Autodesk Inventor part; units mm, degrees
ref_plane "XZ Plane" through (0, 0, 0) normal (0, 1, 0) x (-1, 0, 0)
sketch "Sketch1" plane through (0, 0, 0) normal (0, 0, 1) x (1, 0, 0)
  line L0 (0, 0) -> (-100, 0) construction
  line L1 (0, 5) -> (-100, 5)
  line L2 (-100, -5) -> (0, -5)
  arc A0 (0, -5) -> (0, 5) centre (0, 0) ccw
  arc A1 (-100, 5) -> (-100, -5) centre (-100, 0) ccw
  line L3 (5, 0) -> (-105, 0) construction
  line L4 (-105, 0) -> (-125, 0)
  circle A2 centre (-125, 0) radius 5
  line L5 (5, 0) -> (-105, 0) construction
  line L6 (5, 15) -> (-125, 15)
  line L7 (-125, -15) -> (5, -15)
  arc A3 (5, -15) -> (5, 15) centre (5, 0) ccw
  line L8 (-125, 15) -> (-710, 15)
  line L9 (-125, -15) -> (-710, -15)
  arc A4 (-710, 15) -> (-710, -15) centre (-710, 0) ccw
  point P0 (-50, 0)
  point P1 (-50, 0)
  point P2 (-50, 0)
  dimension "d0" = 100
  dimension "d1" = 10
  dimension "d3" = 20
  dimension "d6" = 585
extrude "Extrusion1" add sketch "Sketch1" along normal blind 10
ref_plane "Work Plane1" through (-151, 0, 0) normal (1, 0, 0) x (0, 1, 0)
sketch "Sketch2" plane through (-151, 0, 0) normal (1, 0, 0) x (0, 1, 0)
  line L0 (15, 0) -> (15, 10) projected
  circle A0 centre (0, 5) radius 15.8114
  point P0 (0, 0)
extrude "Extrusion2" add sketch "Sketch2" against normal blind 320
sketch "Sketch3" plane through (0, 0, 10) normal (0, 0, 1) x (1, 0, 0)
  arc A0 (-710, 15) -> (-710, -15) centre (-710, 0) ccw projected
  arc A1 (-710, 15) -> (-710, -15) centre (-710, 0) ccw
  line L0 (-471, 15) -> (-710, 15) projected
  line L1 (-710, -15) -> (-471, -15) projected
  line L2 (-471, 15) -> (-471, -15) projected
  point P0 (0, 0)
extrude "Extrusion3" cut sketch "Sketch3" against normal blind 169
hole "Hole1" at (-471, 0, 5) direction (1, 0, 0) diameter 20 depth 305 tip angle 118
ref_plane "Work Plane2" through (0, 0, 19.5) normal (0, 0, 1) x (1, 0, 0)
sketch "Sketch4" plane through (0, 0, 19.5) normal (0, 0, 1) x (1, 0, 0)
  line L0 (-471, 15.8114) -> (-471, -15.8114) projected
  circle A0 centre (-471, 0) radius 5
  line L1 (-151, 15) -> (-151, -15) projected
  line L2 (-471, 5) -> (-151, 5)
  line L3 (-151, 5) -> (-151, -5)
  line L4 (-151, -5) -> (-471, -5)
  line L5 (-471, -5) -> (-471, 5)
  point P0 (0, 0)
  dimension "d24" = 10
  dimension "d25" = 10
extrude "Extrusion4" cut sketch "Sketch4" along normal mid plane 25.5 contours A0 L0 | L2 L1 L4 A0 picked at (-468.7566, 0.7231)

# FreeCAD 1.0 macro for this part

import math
import FreeCAD as App
import Part
import Sketcher
Q = App.Units.Quantity

doc = App.newDocument("Part")
body = doc.addObject("PartDesign::Body", "Body")

sketch1 = doc.addObject("Sketcher::SketchObject", "Sketch")
body.addObject(sketch1)
sketch1.AttachmentSupport = (doc.XY_Plane, [""])
sketch1.MapMode = "FlatFace"
sketch1.addGeometry([
    Part.ArcOfCircle(Part.Circle(App.Vector(5, 0, 0), App.Vector(0, 0, 1), 15), math.radians(-90), math.radians(90)),
    Part.LineSegment(App.Vector(5, 15, 0), App.Vector(-710, 15, 0)),
    Part.ArcOfCircle(Part.Circle(App.Vector(-710, 0, 0), App.Vector(0, 0, 1), 15), math.radians(90), math.radians(270)),
    Part.LineSegment(App.Vector(-710, -15, 0), App.Vector(5, -15, 0)),
    Part.Circle(App.Vector(-125, 0, 0), App.Vector(0, 0, 1), 5),
    Part.LineSegment(App.Vector(-100, 5, 0), App.Vector(0, 5, 0)),
    Part.ArcOfCircle(Part.Circle(App.Vector(0, 0, 0), App.Vector(0, 0, 1), 5), math.radians(-90), math.radians(90)),
    Part.LineSegment(App.Vector(0, -5, 0), App.Vector(-100, -5, 0)),
    Part.ArcOfCircle(Part.Circle(App.Vector(-100, 0, 0), App.Vector(0, 0, 1), 5), math.radians(180), math.radians(270)),
    Part.ArcOfCircle(Part.Circle(App.Vector(-100, 0, 0), App.Vector(0, 0, 1), 5), math.radians(90), math.radians(180)),
], False)
sketch1.addConstraint([
    Sketcher.Constraint("Tangent", 0, 2, 1, 1),
    Sketcher.Constraint("Tangent", 1, 2, 2, 1),
    Sketcher.Constraint("Tangent", 2, 2, 3, 1),
    Sketcher.Constraint("Tangent", 3, 2, 0, 1),
    Sketcher.Constraint("Tangent", 5, 2, 6, 2),
    Sketcher.Constraint("Tangent", 6, 1, 7, 1),
    Sketcher.Constraint("Tangent", 7, 2, 8, 2),
    Sketcher.Constraint("Tangent", 8, 1, 9, 2),
    Sketcher.Constraint("Tangent", 9, 1, 5, 1),
    Sketcher.Constraint("Horizontal", 1),
    Sketcher.Constraint("Horizontal", 3),
    Sketcher.Constraint("Horizontal", 5),
    Sketcher.Constraint("Horizontal", 7),
    Sketcher.Constraint("Coincident", 6, 3, -1, 1),
    Sketcher.Constraint("Equal", 4, 6),
    Sketcher.Constraint("Equal", 6, 8),
    Sketcher.Constraint("PointOnObject", 0, 3, -1),
    Sketcher.Constraint("PointOnObject", 4, 3, -1),
    Sketcher.Constraint("PointOnObject", 8, 1, -1),
    Sketcher.Constraint("Diameter", 4, Q("10 mm")),
    Sketcher.Constraint("DistanceX", 5, 1, 5, 2, Q("100 mm")),
    Sketcher.Constraint("Radius", 0, Q("15 mm")),
    Sketcher.Constraint("DistanceX", 2, 3, 4, 3, Q("585 mm")),
    Sketcher.Constraint("DistanceX", 4, 3, 8, 1, Q("20 mm")),
    Sketcher.Constraint("DistanceX", 1, 2, 1, 1, Q("715 mm")),
])
pad1 = doc.addObject("PartDesign::Pad", "Pad")
body.addObject(pad1)
pad1.Profile = sketch1
pad1.Length = 10

sketch2 = doc.addObject("Sketcher::SketchObject", "Sketch001")
body.addObject(sketch2)
sketch2.AttachmentSupport = (doc.YZ_Plane, [""])
sketch2.MapMode = "FlatFace"
sketch2.AttachmentOffset = App.Placement(App.Vector(0, 0, -151), App.Rotation())
sketch2.addGeometry(Part.Circle(App.Vector(0, 5, 0), App.Vector(0, 0, 1), 16), False)
sketch2.addConstraint([
    Sketcher.Constraint("PointOnObject", 0, 3, -2),
    Sketcher.Constraint("DistanceY", -1, 1, 0, 3, Q("5 mm")),
    Sketcher.Constraint("Diameter", 0, Q("31.6228 mm")),
])
pad2 = doc.addObject("PartDesign::Pad", "Pad001")
body.addObject(pad2)
pad2.Profile = sketch2
pad2.Length = 320
pad2.Reversed = True

sketch3 = doc.addObject("Sketcher::SketchObject", "Sketch002")
body.addObject(sketch3)
sketch3.AttachmentSupport = (doc.XY_Plane, [""])
sketch3.MapMode = "FlatFace"
sketch3.AttachmentOffset = App.Placement(App.Vector(0, 0, 10), App.Rotation())
sketch3.addGeometry([
    Part.LineSegment(App.Vector(-471, 15, 0), App.Vector(-710, 15, 0)),
    Part.ArcOfCircle(Part.Circle(App.Vector(-710, 0, 0), App.Vector(0, 0, 1), 15), math.radians(90), math.radians(270)),
    Part.LineSegment(App.Vector(-710, -15, 0), App.Vector(-471, -15, 0)),
    Part.LineSegment(App.Vector(-471, -15, 0), App.Vector(-471, 15, 0)),
], False)
sketch3.addConstraint([
    Sketcher.Constraint("Tangent", 0, 2, 1, 1),
    Sketcher.Constraint("Tangent", 1, 2, 2, 1),
    Sketcher.Constraint("Coincident", 2, 2, 3, 1),
    Sketcher.Constraint("Coincident", 3, 2, 0, 1),
    Sketcher.Constraint("Horizontal", 0),
    Sketcher.Constraint("Horizontal", 2),
    Sketcher.Constraint("Vertical", 3),
    Sketcher.Constraint("PointOnObject", 1, 3, -1),
    Sketcher.Constraint("Radius", 1, Q("15 mm")),
    Sketcher.Constraint("DistanceX", 0, 2, 0, 1, Q("239 mm")),
    Sketcher.Constraint("DistanceX", 1, 3, -1, 1, Q("710 mm")),
])
pocket1 = doc.addObject("PartDesign::Pocket", "Pocket")
body.addObject(pocket1)
pocket1.Profile = sketch3
pocket1.Length = 169

sketch4 = doc.addObject("Sketcher::SketchObject", "Sketch003")
body.addObject(sketch4)
sketch4.AttachmentSupport = (doc.YZ_Plane, [""])
sketch4.MapMode = "FlatFace"
sketch4.AttachmentOffset = App.Placement(App.Vector(0, 0, -471), App.Rotation())
sketch4.addGeometry(Part.Circle(App.Vector(0, 5, 0), App.Vector(0, 0, 1), 10), False)
sketch4.addConstraint([
    Sketcher.Constraint("PointOnObject", 0, 3, -2),
    Sketcher.Constraint("Diameter", 0, Q("20 mm")),
    Sketcher.Constraint("DistanceY", -1, 1, 0, 3, Q("5 mm")),
])
doc.recompute()
hole = doc.addObject("PartDesign::Hole", "Hole")
body.addObject(hole)
hole.Profile = sketch4
hole.ThreadType = "None"
hole.Diameter = 20
hole.DepthType = "Dimension"
hole.Depth = 305
hole.DrillPoint = "Angled"
hole.DrillPointAngle = 118
hole.Reversed = True

sketch5 = doc.addObject("Sketcher::SketchObject", "Sketch004")
body.addObject(sketch5)
sketch5.AttachmentSupport = (doc.XY_Plane, [""])
sketch5.MapMode = "FlatFace"
sketch5.AttachmentOffset = App.Placement(App.Vector(0, 0, 19.5), App.Rotation())
sketch5.addGeometry([
    Part.LineSegment(App.Vector(-471, 5, 0), App.Vector(-471, -5, 0)),
    Part.LineSegment(App.Vector(-471, -5, 0), App.Vector(-151, -5, 0)),
    Part.LineSegment(App.Vector(-151, -5, 0), App.Vector(-151, 5, 0)),
    Part.LineSegment(App.Vector(-151, 5, 0), App.Vector(-471, 5, 0)),
], False)
sketch5.addConstraint([
    Sketcher.Constraint("Coincident", 0, 2, 1, 1),
    Sketcher.Constraint("Coincident", 1, 2, 2, 1),
    Sketcher.Constraint("Coincident", 2, 2, 3, 1),
    Sketcher.Constraint("Coincident", 3, 2, 0, 1),
    Sketcher.Constraint("Vertical", 0),
    Sketcher.Constraint("Horizontal", 1),
    Sketcher.Constraint("Vertical", 2),
    Sketcher.Constraint("Horizontal", 3),
    Sketcher.Constraint("DistanceY", 0, 2, 0, 1, Q("10 mm")),
    Sketcher.Constraint("DistanceX", 1, 1, 1, 2, Q("320 mm")),
    Sketcher.Constraint("DistanceX", 0, 2, -1, 1, Q("471 mm")),
    Sketcher.Constraint("DistanceY", 0, 2, -1, 1, Q("5 mm")),
])
pocket2 = doc.addObject("PartDesign::Pocket", "Pocket001")
body.addObject(pocket2)
pocket2.Profile = sketch5
pocket2.Length = 25.5
pocket2.Midplane = True

doc.recompute()
